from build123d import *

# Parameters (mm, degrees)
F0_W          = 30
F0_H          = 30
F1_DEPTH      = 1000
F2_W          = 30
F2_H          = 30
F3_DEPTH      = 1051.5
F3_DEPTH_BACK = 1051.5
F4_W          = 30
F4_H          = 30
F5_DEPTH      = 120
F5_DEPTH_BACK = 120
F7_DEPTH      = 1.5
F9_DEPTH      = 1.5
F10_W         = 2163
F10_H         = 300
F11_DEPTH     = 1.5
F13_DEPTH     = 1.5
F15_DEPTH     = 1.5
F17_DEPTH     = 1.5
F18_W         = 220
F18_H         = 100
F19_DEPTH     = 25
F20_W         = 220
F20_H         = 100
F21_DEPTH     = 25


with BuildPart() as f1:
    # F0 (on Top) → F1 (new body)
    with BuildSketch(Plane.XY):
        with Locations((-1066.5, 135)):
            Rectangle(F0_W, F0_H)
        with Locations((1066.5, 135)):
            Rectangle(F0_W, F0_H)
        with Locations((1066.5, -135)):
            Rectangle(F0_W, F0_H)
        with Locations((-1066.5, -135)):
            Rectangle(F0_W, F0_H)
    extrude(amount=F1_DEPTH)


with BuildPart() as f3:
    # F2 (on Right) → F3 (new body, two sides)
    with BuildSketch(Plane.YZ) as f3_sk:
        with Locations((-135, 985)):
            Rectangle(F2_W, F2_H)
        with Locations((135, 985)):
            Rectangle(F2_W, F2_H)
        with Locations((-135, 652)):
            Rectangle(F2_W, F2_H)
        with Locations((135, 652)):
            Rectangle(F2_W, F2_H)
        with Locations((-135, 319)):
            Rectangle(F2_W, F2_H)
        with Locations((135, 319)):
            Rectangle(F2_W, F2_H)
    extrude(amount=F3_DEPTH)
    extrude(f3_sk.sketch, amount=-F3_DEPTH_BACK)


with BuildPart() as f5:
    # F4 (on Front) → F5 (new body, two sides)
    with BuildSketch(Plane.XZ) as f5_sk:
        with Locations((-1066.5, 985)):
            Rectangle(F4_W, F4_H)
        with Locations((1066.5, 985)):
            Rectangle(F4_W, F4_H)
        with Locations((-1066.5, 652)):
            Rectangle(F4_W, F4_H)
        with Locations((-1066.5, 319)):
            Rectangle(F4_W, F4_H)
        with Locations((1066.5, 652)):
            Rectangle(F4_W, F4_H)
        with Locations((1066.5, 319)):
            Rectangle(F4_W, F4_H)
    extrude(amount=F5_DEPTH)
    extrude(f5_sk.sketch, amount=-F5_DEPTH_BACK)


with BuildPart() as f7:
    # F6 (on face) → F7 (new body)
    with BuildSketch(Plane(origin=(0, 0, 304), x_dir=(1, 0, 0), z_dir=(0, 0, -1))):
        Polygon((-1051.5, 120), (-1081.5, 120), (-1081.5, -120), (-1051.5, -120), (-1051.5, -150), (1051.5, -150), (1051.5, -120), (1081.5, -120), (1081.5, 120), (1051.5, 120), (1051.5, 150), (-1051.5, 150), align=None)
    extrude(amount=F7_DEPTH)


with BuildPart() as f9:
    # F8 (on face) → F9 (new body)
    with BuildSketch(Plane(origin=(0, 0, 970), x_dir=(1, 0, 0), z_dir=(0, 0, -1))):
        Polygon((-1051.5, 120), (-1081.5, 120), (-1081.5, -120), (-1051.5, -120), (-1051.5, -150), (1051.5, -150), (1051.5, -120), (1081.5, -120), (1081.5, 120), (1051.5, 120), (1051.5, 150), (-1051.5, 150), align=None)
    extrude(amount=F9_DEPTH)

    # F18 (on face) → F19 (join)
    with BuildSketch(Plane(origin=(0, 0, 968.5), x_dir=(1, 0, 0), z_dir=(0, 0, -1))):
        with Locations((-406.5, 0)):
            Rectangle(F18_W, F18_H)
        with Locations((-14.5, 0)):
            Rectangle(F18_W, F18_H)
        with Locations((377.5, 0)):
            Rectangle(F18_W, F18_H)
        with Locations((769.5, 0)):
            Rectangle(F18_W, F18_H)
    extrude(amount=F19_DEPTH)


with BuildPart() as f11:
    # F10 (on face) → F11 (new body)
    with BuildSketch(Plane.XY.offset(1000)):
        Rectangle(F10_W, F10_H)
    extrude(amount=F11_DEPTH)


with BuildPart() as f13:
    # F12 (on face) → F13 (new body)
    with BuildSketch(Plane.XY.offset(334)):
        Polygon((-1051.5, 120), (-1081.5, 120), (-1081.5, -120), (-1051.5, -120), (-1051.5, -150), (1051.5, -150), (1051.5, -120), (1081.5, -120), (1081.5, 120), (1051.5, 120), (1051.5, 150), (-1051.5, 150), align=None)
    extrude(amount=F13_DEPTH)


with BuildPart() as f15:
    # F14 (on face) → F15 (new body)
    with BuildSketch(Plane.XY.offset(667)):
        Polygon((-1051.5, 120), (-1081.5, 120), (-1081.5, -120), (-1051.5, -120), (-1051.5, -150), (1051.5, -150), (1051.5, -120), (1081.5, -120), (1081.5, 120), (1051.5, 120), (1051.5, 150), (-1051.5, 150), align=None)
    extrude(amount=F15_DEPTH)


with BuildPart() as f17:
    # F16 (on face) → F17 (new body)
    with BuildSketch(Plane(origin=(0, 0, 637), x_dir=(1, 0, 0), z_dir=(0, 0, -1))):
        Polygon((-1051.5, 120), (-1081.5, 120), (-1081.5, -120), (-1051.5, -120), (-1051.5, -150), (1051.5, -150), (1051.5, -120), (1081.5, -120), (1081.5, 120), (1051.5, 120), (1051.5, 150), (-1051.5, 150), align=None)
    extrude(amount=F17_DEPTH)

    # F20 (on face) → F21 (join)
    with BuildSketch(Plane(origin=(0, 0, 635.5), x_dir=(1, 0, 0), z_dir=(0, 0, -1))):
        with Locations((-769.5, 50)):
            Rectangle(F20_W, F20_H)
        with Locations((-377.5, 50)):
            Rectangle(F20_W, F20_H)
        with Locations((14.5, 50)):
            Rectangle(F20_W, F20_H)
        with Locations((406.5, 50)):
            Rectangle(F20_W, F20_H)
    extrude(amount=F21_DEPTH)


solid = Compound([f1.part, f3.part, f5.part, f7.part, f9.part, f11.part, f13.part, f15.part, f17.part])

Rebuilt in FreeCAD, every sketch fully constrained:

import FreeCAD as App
import Part
import Sketcher


def add_polygon(sketch, points):
    """Adds a closed chain of lines whose ends are joined by coincident constraints."""
    first, n = sketch.GeometryCount, len(points)
    for a, b in zip(points, points[1:] + points[:1]):
        sketch.addGeometry(Part.LineSegment(App.Vector(*a, 0), App.Vector(*b, 0)), False)
    for i in range(n):
        sketch.addConstraint(Sketcher.Constraint("Coincident", first + i, 2, first + (i + 1) % n, 1))

doc = App.newDocument("Part")
body = doc.addObject("PartDesign::Body", "Body")
body.AllowCompound = True

sketch1 = body.newObject("Sketcher::SketchObject", "Sketch")
sketch1.AttachmentSupport = (doc.getObject("XY_Plane"), [""])
sketch1.MapMode = "FlatFace"
add_polygon(sketch1, [(-1082, 150), (-1082, 120), (-1052, 120), (-1052, 150)])
add_polygon(sketch1, [(1052, 150), (1052, 120), (1082, 120), (1082, 150)])
add_polygon(sketch1, [(1052, -120), (1052, -150), (1082, -150), (1082, -120)])
add_polygon(sketch1, [(-1082, -120), (-1082, -150), (-1052, -150), (-1052, -120)])
sketch1.addConstraint([
    Sketcher.Constraint("Vertical", 0),
    Sketcher.Constraint("Horizontal", 1),
    Sketcher.Constraint("Vertical", 2),
    Sketcher.Constraint("Horizontal", 3),
    Sketcher.Constraint("Vertical", 4),
    Sketcher.Constraint("Horizontal", 5),
    Sketcher.Constraint("Vertical", 6),
    Sketcher.Constraint("Horizontal", 7),
    Sketcher.Constraint("Vertical", 8),
    Sketcher.Constraint("Horizontal", 9),
    Sketcher.Constraint("Vertical", 10),
    Sketcher.Constraint("Horizontal", 11),
    Sketcher.Constraint("Vertical", 12),
    Sketcher.Constraint("Horizontal", 13),
    Sketcher.Constraint("Vertical", 14),
    Sketcher.Constraint("Horizontal", 15),
    Sketcher.Constraint("Symmetric", 2, 2, 8, 2, -1, 1),
    Sketcher.Constraint("Symmetric", 0, 2, 10, 2, -1, 1),
    Sketcher.Constraint("Symmetric", 6, 2, 12, 2, -1, 1),
    Sketcher.Constraint("Symmetric", 4, 2, 14, 2, -1, 1),
    Sketcher.Constraint("Symmetric", 1, 2, 4, 2, -2),
    Sketcher.Constraint("Symmetric", 3, 2, 6, 2, -2),
    Sketcher.Constraint("Equal", 15, 0),
    Sketcher.Constraint("DistanceX", 1, 1, 1, 2, 30.0),
    Sketcher.Constraint("DistanceY", -1, 1, 0, 2, 120.0),
    Sketcher.Constraint("DistanceX", 1, 2, 4, 2, 2103.0),
])
pad1 = body.newObject("PartDesign::Pad", "Pad")
pad1.Profile = sketch1
pad1.Length = 1000
body2 = doc.addObject("PartDesign::Body", "Body001")
body2.AllowCompound = True

sketch2 = body2.newObject("Sketcher::SketchObject", "Sketch001")
sketch2.AttachmentSupport = (doc.getObject("YZ_Plane001"), [""])
sketch2.MapMode = "FlatFace"
add_polygon(sketch2, [(-150, 1000), (-150, 970), (-120, 970), (-120, 1000)])
add_polygon(sketch2, [(120, 1000), (120, 970), (150, 970), (150, 1000)])
add_polygon(sketch2, [(-150, 667), (-150, 637), (-120, 637), (-120, 667)])
add_polygon(sketch2, [(120, 667), (120, 637), (150, 637), (150, 667)])
add_polygon(sketch2, [(-150, 334), (-150, 304), (-120, 304), (-120, 334)])
add_polygon(sketch2, [(120, 334), (120, 304), (150, 304), (150, 334)])
sketch2.addConstraint([
    Sketcher.Constraint("Vertical", 0),
    Sketcher.Constraint("Horizontal", 1),
    Sketcher.Constraint("Vertical", 2),
    Sketcher.Constraint("Horizontal", 3),
    Sketcher.Constraint("Vertical", 4),
    Sketcher.Constraint("Horizontal", 5),
    Sketcher.Constraint("Vertical", 6),
    Sketcher.Constraint("Horizontal", 7),
    Sketcher.Constraint("Vertical", 8),
    Sketcher.Constraint("Horizontal", 9),
    Sketcher.Constraint("Vertical", 10),
    Sketcher.Constraint("Horizontal", 11),
    Sketcher.Constraint("Vertical", 12),
    Sketcher.Constraint("Horizontal", 13),
    Sketcher.Constraint("Vertical", 14),
    Sketcher.Constraint("Horizontal", 15),
    Sketcher.Constraint("Vertical", 16),
    Sketcher.Constraint("Horizontal", 17),
    Sketcher.Constraint("Vertical", 18),
    Sketcher.Constraint("Horizontal", 19),
    Sketcher.Constraint("Vertical", 20),
    Sketcher.Constraint("Horizontal", 21),
    Sketcher.Constraint("Vertical", 22),
    Sketcher.Constraint("Horizontal", 23),
    Sketcher.Constraint("Symmetric", 1, 2, 4, 2, -2),
    Sketcher.Constraint("Symmetric", 3, 2, 6, 2, -2),
    Sketcher.Constraint("Symmetric", 9, 2, 12, 2, -2),
    Sketcher.Constraint("Symmetric", 11, 2, 14, 2, -2),
    Sketcher.Constraint("Symmetric", 17, 2, 20, 2, -2),
    Sketcher.Constraint("Symmetric", 19, 2, 22, 2, -2),
    Sketcher.Constraint("Vertical", 3, 2, 8, 2),
    Sketcher.Constraint("Vertical", 2, 2, 9, 2),
    Sketcher.Constraint("Vertical", 11, 2, 16, 2),
    Sketcher.Constraint("Vertical", 10, 2, 17, 2),
    Sketcher.Constraint("Equal", 23, 0),
    Sketcher.Constraint("Equal", 6, 8),
    Sketcher.Constraint("Equal", 14, 16),
    Sketcher.Constraint("DistanceX", 1, 1, 1, 2, 30.0),
    Sketcher.Constraint("DistanceX", 0, 2, -1, 1, 150.0),
    Sketcher.Constraint("DistanceY", -1, 1, 0, 2, 970.0),
    Sketcher.Constraint("DistanceY", -1, 1, 8, 2, 637.0),
    Sketcher.Constraint("DistanceY", -1, 1, 16, 2, 304.0),
])
pad2 = body2.newObject("PartDesign::Pad", "Pad001")
pad2.Profile = sketch2
pad2.Type = "TwoLengths"
pad2.Length = 1051.5
pad2.Length2 = 1051.5
body3 = doc.addObject("PartDesign::Body", "Body002")
body3.AllowCompound = True

sketch3 = body3.newObject("Sketcher::SketchObject", "Sketch002")
sketch3.AttachmentSupport = (doc.getObject("XZ_Plane002"), [""])
sketch3.MapMode = "FlatFace"
add_polygon(sketch3, [(-1082, 1000), (-1082, 970), (-1052, 970), (-1052, 1000)])
add_polygon(sketch3, [(1052, 1000), (1052, 970), (1082, 970), (1082, 1000)])
add_polygon(sketch3, [(-1082, 667), (-1082, 637), (-1052, 637), (-1052, 667)])
add_polygon(sketch3, [(-1082, 334), (-1082, 304), (-1052, 304), (-1052, 334)])
add_polygon(sketch3, [(1052, 667), (1052, 637), (1082, 637), (1082, 667)])
add_polygon(sketch3, [(1052, 334), (1052, 304), (1082, 304), (1082, 334)])
sketch3.addConstraint([
    Sketcher.Constraint("Vertical", 0),
    Sketcher.Constraint("Horizontal", 1),
    Sketcher.Constraint("Vertical", 2),
    Sketcher.Constraint("Horizontal", 3),
    Sketcher.Constraint("Vertical", 4),
    Sketcher.Constraint("Horizontal", 5),
    Sketcher.Constraint("Vertical", 6),
    Sketcher.Constraint("Horizontal", 7),
    Sketcher.Constraint("Vertical", 8),
    Sketcher.Constraint("Horizontal", 9),
    Sketcher.Constraint("Vertical", 10),
    Sketcher.Constraint("Horizontal", 11),
    Sketcher.Constraint("Vertical", 12),
    Sketcher.Constraint("Horizontal", 13),
    Sketcher.Constraint("Vertical", 14),
    Sketcher.Constraint("Horizontal", 15),
    Sketcher.Constraint("Vertical", 16),
    Sketcher.Constraint("Horizontal", 17),
    Sketcher.Constraint("Vertical", 18),
    Sketcher.Constraint("Horizontal", 19),
    Sketcher.Constraint("Vertical", 20),
    Sketcher.Constraint("Horizontal", 21),
    Sketcher.Constraint("Vertical", 22),
    Sketcher.Constraint("Horizontal", 23),
    Sketcher.Constraint("Symmetric", 1, 2, 4, 2, -2),
    Sketcher.Constraint("Symmetric", 3, 2, 6, 2, -2),
    Sketcher.Constraint("Symmetric", 9, 2, 16, 2, -2),
    Sketcher.Constraint("Symmetric", 11, 2, 18, 2, -2),
    Sketcher.Constraint("Symmetric", 13, 2, 20, 2, -2),
    Sketcher.Constraint("Symmetric", 15, 2, 22, 2, -2),
    Sketcher.Constraint("Vertical", 3, 2, 8, 2),
    Sketcher.Constraint("Vertical", 2, 2, 9, 2),
    Sketcher.Constraint("Vertical", 11, 2, 12, 2),
    Sketcher.Constraint("Vertical", 10, 2, 13, 2),
    Sketcher.Constraint("Equal", 23, 0),
    Sketcher.Constraint("Equal", 6, 8),
    Sketcher.Constraint("Equal", 10, 12),
    Sketcher.Constraint("DistanceX", 1, 1, 1, 2, 30.0),
    Sketcher.Constraint("DistanceY", -1, 1, 0, 2, 970.0),
    Sketcher.Constraint("DistanceY", -1, 1, 8, 2, 637.0),
    Sketcher.Constraint("DistanceY", -1, 1, 12, 2, 304.0),
    Sketcher.Constraint("DistanceX", 1, 2, 4, 2, 2103.0),
])
pad3 = body3.newObject("PartDesign::Pad", "Pad002")
pad3.Profile = sketch3
pad3.Type = "TwoLengths"
pad3.Length = 120
pad3.Length2 = 120
body4 = doc.addObject("PartDesign::Body", "Body003")

sketch4 = body4.newObject("Sketcher::SketchObject", "Sketch003")
sketch4.AttachmentSupport = (doc.getObject("XY_Plane003"), [""])
sketch4.MapMode = "FlatFace"
sketch4.AttachmentOffset = App.Placement(App.Vector(0, 0, 304), App.Rotation())
add_polygon(sketch4, [(-1052, -120), (-1082, -120), (-1082, 120), (-1052, 120), (-1052, 150), (1052, 150), (1052, 120), (1082, 120), (1082, -120), (1052, -120), (1052, -150), (-1052, -150)])
sketch4.addConstraint([
    Sketcher.Constraint("Horizontal", 0),
    Sketcher.Constraint("Vertical", 1),
    Sketcher.Constraint("Horizontal", 2),
    Sketcher.Constraint("Vertical", 3),
    Sketcher.Constraint("Horizontal", 4),
    Sketcher.Constraint("Vertical", 5),
    Sketcher.Constraint("Horizontal", 6),
    Sketcher.Constraint("Vertical", 7),
    Sketcher.Constraint("Horizontal", 8),
    Sketcher.Constraint("Vertical", 9),
    Sketcher.Constraint("Horizontal", 10),
    Sketcher.Constraint("Vertical", 11),
    Sketcher.Constraint("Symmetric", 0, 2, 6, 2, -1, 1),
    Sketcher.Constraint("Symmetric", 2, 2, 8, 2, -1, 1),
    Sketcher.Constraint("Symmetric", 4, 2, 10, 2, -1, 1),
    Sketcher.Constraint("Symmetric", 2, 2, 5, 2, -2),
    Sketcher.Constraint("Equal", 8, 3),
    Sketcher.Constraint("DistanceX", 0, 2, 0, 1, 30.0),
    Sketcher.Constraint("DistanceX", 4, 1, 4, 2, 2103.0),
    Sketcher.Constraint("DistanceY", 1, 1, 1, 2, 240.0),
])
pad4 = body4.newObject("PartDesign::Pad", "Pad003")
pad4.Profile = sketch4
pad4.Length = 1.5
pad4.Reversed = True
body5 = doc.addObject("PartDesign::Body", "Body004")

sketch5 = body5.newObject("Sketcher::SketchObject", "Sketch004")
sketch5.AttachmentSupport = (doc.getObject("XY_Plane004"), [""])
sketch5.MapMode = "FlatFace"
sketch5.AttachmentOffset = App.Placement(App.Vector(0, 0, 970), App.Rotation())
add_polygon(sketch5, [(-1052, -120), (-1082, -120), (-1082, 120), (-1052, 120), (-1052, 150), (1052, 150), (1052, 120), (1082, 120), (1082, -120), (1052, -120), (1052, -150), (-1052, -150)])
sketch5.addConstraint([
    Sketcher.Constraint("Horizontal", 0),
    Sketcher.Constraint("Vertical", 1),
    Sketcher.Constraint("Horizontal", 2),
    Sketcher.Constraint("Vertical", 3),
    Sketcher.Constraint("Horizontal", 4),
    Sketcher.Constraint("Vertical", 5),
    Sketcher.Constraint("Horizontal", 6),
    Sketcher.Constraint("Vertical", 7),
    Sketcher.Constraint("Horizontal", 8),
    Sketcher.Constraint("Vertical", 9),
    Sketcher.Constraint("Horizontal", 10),
    Sketcher.Constraint("Vertical", 11),
    Sketcher.Constraint("Symmetric", 0, 2, 6, 2, -1, 1),
    Sketcher.Constraint("Symmetric", 2, 2, 8, 2, -1, 1),
    Sketcher.Constraint("Symmetric", 4, 2, 10, 2, -1, 1),
    Sketcher.Constraint("Symmetric", 2, 2, 5, 2, -2),
    Sketcher.Constraint("Equal", 8, 3),
    Sketcher.Constraint("DistanceX", 0, 2, 0, 1, 30.0),
    Sketcher.Constraint("DistanceX", 4, 1, 4, 2, 2103.0),
    Sketcher.Constraint("DistanceY", 1, 1, 1, 2, 240.0),
])
pad5 = body5.newObject("PartDesign::Pad", "Pad004")
pad5.Profile = sketch5
pad5.Length = 1.5
pad5.Reversed = True

sketch6 = body5.newObject("Sketcher::SketchObject", "Sketch005")
sketch6.AttachmentSupport = (doc.getObject("XY_Plane004"), [""])
sketch6.MapMode = "FlatFace"
sketch6.AttachmentOffset = App.Placement(App.Vector(0, 0, 968.5), App.Rotation())
add_polygon(sketch6, [(-516, -50), (-516, 50), (-296, 50), (-296, -50)])
add_polygon(sketch6, [(-124, -50), (-124, 50), (96, 50), (96, -50)])
add_polygon(sketch6, [(268, -50), (268, 50), (488, 50), (488, -50)])
add_polygon(sketch6, [(660, -50), (660, 50), (880, 50), (880, -50)])
sketch6.addConstraint([
    Sketcher.Constraint("Vertical", 0),
    Sketcher.Constraint("Horizontal", 1),
    Sketcher.Constraint("Vertical", 2),
    Sketcher.Constraint("Horizontal", 3),
    Sketcher.Constraint("Vertical", 4),
    Sketcher.Constraint("Horizontal", 5),
    Sketcher.Constraint("Vertical", 6),
    Sketcher.Constraint("Horizontal", 7),
    Sketcher.Constraint("Vertical", 8),
    Sketcher.Constraint("Horizontal", 9),
    Sketcher.Constraint("Vertical", 10),
    Sketcher.Constraint("Horizontal", 11),
    Sketcher.Constraint("Vertical", 12),
    Sketcher.Constraint("Horizontal", 13),
    Sketcher.Constraint("Vertical", 14),
    Sketcher.Constraint("Horizontal", 15),
    Sketcher.Constraint("Horizontal", 1, 2, 4, 2),
    Sketcher.Constraint("Horizontal", 3, 2, 6, 2),
    Sketcher.Constraint("Horizontal", 5, 2, 8, 2),
    Sketcher.Constraint("Horizontal", 7, 2, 10, 2),
    Sketcher.Constraint("Horizontal", 9, 2, 12, 2),
    Sketcher.Constraint("Horizontal", 11, 2, 14, 2),
    Sketcher.Constraint("Equal", 3, 5),
    Sketcher.Constraint("Equal", 7, 9),
    Sketcher.Constraint("Equal", 11, 13),
    Sketcher.Constraint("DistanceX", 1, 1, 1, 2, 220.0),
    Sketcher.Constraint("DistanceY", 0, 1, 0, 2, 100.0),
    Sketcher.Constraint("DistanceY", -1, 1, 0, 2, 50.0),
    Sketcher.Constraint("DistanceX", 1, 2, 4, 2, 172.0),
    Sketcher.Constraint("DistanceX", 5, 2, 8, 2, 172.0),
    Sketcher.Constraint("DistanceX", 9, 2, 12, 2, 172.0),
    Sketcher.Constraint("DistanceX", 0, 2, -1, 1, 516.5),
])
pad6 = body5.newObject("PartDesign::Pad", "Pad005")
pad6.Profile = sketch6
pad6.Length = 25
pad6.Reversed = True
body6 = doc.addObject("PartDesign::Body", "Body005")

sketch7 = body6.newObject("Sketcher::SketchObject", "Sketch006")
sketch7.AttachmentSupport = (doc.getObject("XY_Plane005"), [""])
sketch7.MapMode = "FlatFace"
sketch7.AttachmentOffset = App.Placement(App.Vector(0, 0, 1000), App.Rotation())
add_polygon(sketch7, [(-1082, 150), (-1082, -150), (1082, -150), (1082, 150)])
sketch7.addConstraint([
    Sketcher.Constraint("Vertical", 0),
    Sketcher.Constraint("Horizontal", 1),
    Sketcher.Constraint("Vertical", 2),
    Sketcher.Constraint("Horizontal", 3),
    Sketcher.Constraint("Symmetric", 0, 2, 2, 2, -1, 1),
    Sketcher.Constraint("DistanceX", 1, 1, 1, 2, 2163.0),
    Sketcher.Constraint("DistanceY", 0, 2, 0, 1, 300.0),
])
pad7 = body6.newObject("PartDesign::Pad", "Pad006")
pad7.Profile = sketch7
pad7.Length = 1.5
body7 = doc.addObject("PartDesign::Body", "Body006")

sketch8 = body7.newObject("Sketcher::SketchObject", "Sketch007")
sketch8.AttachmentSupport = (doc.getObject("XY_Plane006"), [""])
sketch8.MapMode = "FlatFace"
sketch8.AttachmentOffset = App.Placement(App.Vector(0, 0, 334), App.Rotation())
add_polygon(sketch8, [(-1052, 120), (-1082, 120), (-1082, -120), (-1052, -120), (-1052, -150), (1052, -150), (1052, -120), (1082, -120), (1082, 120), (1052, 120), (1052, 150), (-1052, 150)])
sketch8.addConstraint([
    Sketcher.Constraint("Horizontal", 0),
    Sketcher.Constraint("Vertical", 1),
    Sketcher.Constraint("Horizontal", 2),
    Sketcher.Constraint("Vertical", 3),
    Sketcher.Constraint("Horizontal", 4),
    Sketcher.Constraint("Vertical", 5),
    Sketcher.Constraint("Horizontal", 6),
    Sketcher.Constraint("Vertical", 7),
    Sketcher.Constraint("Horizontal", 8),
    Sketcher.Constraint("Vertical", 9),
    Sketcher.Constraint("Horizontal", 10),
    Sketcher.Constraint("Vertical", 11),
    Sketcher.Constraint("Symmetric", 0, 2, 6, 2, -1, 1),
    Sketcher.Constraint("Symmetric", 2, 2, 8, 2, -1, 1),
    Sketcher.Constraint("Symmetric", 4, 2, 10, 2, -1, 1),
    Sketcher.Constraint("Symmetric", 2, 2, 5, 2, -2),
    Sketcher.Constraint("Equal", 8, 3),
    Sketcher.Constraint("DistanceX", 0, 2, 0, 1, 30.0),
    Sketcher.Constraint("DistanceX", 4, 1, 4, 2, 2103.0),
    Sketcher.Constraint("DistanceY", 1, 2, 1, 1, 240.0),
])
pad8 = body7.newObject("PartDesign::Pad", "Pad007")
pad8.Profile = sketch8
pad8.Length = 1.5
body8 = doc.addObject("PartDesign::Body", "Body007")

sketch9 = body8.newObject("Sketcher::SketchObject", "Sketch008")
sketch9.AttachmentSupport = (doc.getObject("XY_Plane007"), [""])
sketch9.MapMode = "FlatFace"
sketch9.AttachmentOffset = App.Placement(App.Vector(0, 0, 667), App.Rotation())
add_polygon(sketch9, [(-1052, 120), (-1082, 120), (-1082, -120), (-1052, -120), (-1052, -150), (1052, -150), (1052, -120), (1082, -120), (1082, 120), (1052, 120), (1052, 150), (-1052, 150)])
sketch9.addConstraint([
    Sketcher.Constraint("Horizontal", 0),
    Sketcher.Constraint("Vertical", 1),
    Sketcher.Constraint("Horizontal", 2),
    Sketcher.Constraint("Vertical", 3),
    Sketcher.Constraint("Horizontal", 4),
    Sketcher.Constraint("Vertical", 5),
    Sketcher.Constraint("Horizontal", 6),
    Sketcher.Constraint("Vertical", 7),
    Sketcher.Constraint("Horizontal", 8),
    Sketcher.Constraint("Vertical", 9),
    Sketcher.Constraint("Horizontal", 10),
    Sketcher.Constraint("Vertical", 11),
    Sketcher.Constraint("Symmetric", 0, 2, 6, 2, -1, 1),
    Sketcher.Constraint("Symmetric", 2, 2, 8, 2, -1, 1),
    Sketcher.Constraint("Symmetric", 4, 2, 10, 2, -1, 1),
    Sketcher.Constraint("Symmetric", 2, 2, 5, 2, -2),
    Sketcher.Constraint("Equal", 8, 3),
    Sketcher.Constraint("DistanceX", 0, 2, 0, 1, 30.0),
    Sketcher.Constraint("DistanceX", 4, 1, 4, 2, 2103.0),
    Sketcher.Constraint("DistanceY", 1, 2, 1, 1, 240.0),
])
pad9 = body8.newObject("PartDesign::Pad", "Pad008")
pad9.Profile = sketch9
pad9.Length = 1.5
body9 = doc.addObject("PartDesign::Body", "Body008")

sketch10 = body9.newObject("Sketcher::SketchObject", "Sketch009")
sketch10.AttachmentSupport = (doc.getObject("XY_Plane008"), [""])
sketch10.MapMode = "FlatFace"
sketch10.AttachmentOffset = App.Placement(App.Vector(0, 0, 637), App.Rotation())
add_polygon(sketch10, [(-1052, -120), (-1082, -120), (-1082, 120), (-1052, 120), (-1052, 150), (1052, 150), (1052, 120), (1082, 120), (1082, -120), (1052, -120), (1052, -150), (-1052, -150)])
sketch10.addConstraint([
    Sketcher.Constraint("Horizontal", 0),
    Sketcher.Constraint("Vertical", 1),
    Sketcher.Constraint("Horizontal", 2),
    Sketcher.Constraint("Vertical", 3),
    Sketcher.Constraint("Horizontal", 4),
    Sketcher.Constraint("Vertical", 5),
    Sketcher.Constraint("Horizontal", 6),
    Sketcher.Constraint("Vertical", 7),
    Sketcher.Constraint("Horizontal", 8),
    Sketcher.Constraint("Vertical", 9),
    Sketcher.Constraint("Horizontal", 10),
    Sketcher.Constraint("Vertical", 11),
    Sketcher.Constraint("Symmetric", 0, 2, 6, 2, -1, 1),
    Sketcher.Constraint("Symmetric", 2, 2, 8, 2, -1, 1),
    Sketcher.Constraint("Symmetric", 4, 2, 10, 2, -1, 1),
    Sketcher.Constraint("Symmetric", 2, 2, 5, 2, -2),
    Sketcher.Constraint("Equal", 8, 3),
    Sketcher.Constraint("DistanceX", 0, 2, 0, 1, 30.0),
    Sketcher.Constraint("DistanceX", 4, 1, 4, 2, 2103.0),
    Sketcher.Constraint("DistanceY", 1, 1, 1, 2, 240.0),
])
pad10 = body9.newObject("PartDesign::Pad", "Pad009")
pad10.Profile = sketch10
pad10.Length = 1.5
pad10.Reversed = True

sketch11 = body9.newObject("Sketcher::SketchObject", "Sketch010")
sketch11.AttachmentSupport = (doc.getObject("XY_Plane008"), [""])
sketch11.MapMode = "FlatFace"
sketch11.AttachmentOffset = App.Placement(App.Vector(0, 0, 635.5), App.Rotation())
add_polygon(sketch11, [(-880, -100), (-880, 0), (-660, 0), (-660, -100)])
add_polygon(sketch11, [(-488, -100), (-488, 0), (-268, 0), (-268, -100)])
add_polygon(sketch11, [(-96, -100), (-96, 0), (124, 0), (124, -100)])
add_polygon(sketch11, [(296, -100), (296, 0), (516, 0), (516, -100)])
sketch11.addConstraint([
    Sketcher.Constraint("Vertical", 0),
    Sketcher.Constraint("Horizontal", 1),
    Sketcher.Constraint("Vertical", 2),
    Sketcher.Constraint("Horizontal", 3),
    Sketcher.Constraint("Vertical", 4),
    Sketcher.Constraint("Horizontal", 5),
    Sketcher.Constraint("Vertical", 6),
    Sketcher.Constraint("Horizontal", 7),
    Sketcher.Constraint("Vertical", 8),
    Sketcher.Constraint("Horizontal", 9),
    Sketcher.Constraint("Vertical", 10),
    Sketcher.Constraint("Horizontal", 11),
    Sketcher.Constraint("Vertical", 12),
    Sketcher.Constraint("Horizontal", 13),
    Sketcher.Constraint("Vertical", 14),
    Sketcher.Constraint("Horizontal", 15),
    Sketcher.Constraint("PointOnObject", 0, 2, -1),
    Sketcher.Constraint("PointOnObject", 4, 2, -1),
    Sketcher.Constraint("PointOnObject", 8, 2, -1),
    Sketcher.Constraint("PointOnObject", 12, 2, -1),
    Sketcher.Constraint("Horizontal", 3, 2, 6, 2),
    Sketcher.Constraint("Horizontal", 7, 2, 10, 2),
    Sketcher.Constraint("Horizontal", 11, 2, 14, 2),
    Sketcher.Constraint("Equal", 3, 5),
    Sketcher.Constraint("Equal", 7, 9),
    Sketcher.Constraint("Equal", 11, 13),
    Sketcher.Constraint("DistanceX", 1, 1, 1, 2, 220.0),
    Sketcher.Constraint("DistanceY", 0, 1, 0, 2, 100.0),
    Sketcher.Constraint("DistanceX", 1, 2, 4, 2, 172.0),
    Sketcher.Constraint("DistanceX", 5, 2, 8, 2, 172.0),
    Sketcher.Constraint("DistanceX", 9, 2, 12, 2, 172.0),
    Sketcher.Constraint("DistanceX", 0, 2, -1, 1, 879.5),
])
pad11 = body9.newObject("PartDesign::Pad", "Pad010")
pad11.Profile = sketch11
pad11.Length = 25
pad11.Reversed = True

doc.recompute()
